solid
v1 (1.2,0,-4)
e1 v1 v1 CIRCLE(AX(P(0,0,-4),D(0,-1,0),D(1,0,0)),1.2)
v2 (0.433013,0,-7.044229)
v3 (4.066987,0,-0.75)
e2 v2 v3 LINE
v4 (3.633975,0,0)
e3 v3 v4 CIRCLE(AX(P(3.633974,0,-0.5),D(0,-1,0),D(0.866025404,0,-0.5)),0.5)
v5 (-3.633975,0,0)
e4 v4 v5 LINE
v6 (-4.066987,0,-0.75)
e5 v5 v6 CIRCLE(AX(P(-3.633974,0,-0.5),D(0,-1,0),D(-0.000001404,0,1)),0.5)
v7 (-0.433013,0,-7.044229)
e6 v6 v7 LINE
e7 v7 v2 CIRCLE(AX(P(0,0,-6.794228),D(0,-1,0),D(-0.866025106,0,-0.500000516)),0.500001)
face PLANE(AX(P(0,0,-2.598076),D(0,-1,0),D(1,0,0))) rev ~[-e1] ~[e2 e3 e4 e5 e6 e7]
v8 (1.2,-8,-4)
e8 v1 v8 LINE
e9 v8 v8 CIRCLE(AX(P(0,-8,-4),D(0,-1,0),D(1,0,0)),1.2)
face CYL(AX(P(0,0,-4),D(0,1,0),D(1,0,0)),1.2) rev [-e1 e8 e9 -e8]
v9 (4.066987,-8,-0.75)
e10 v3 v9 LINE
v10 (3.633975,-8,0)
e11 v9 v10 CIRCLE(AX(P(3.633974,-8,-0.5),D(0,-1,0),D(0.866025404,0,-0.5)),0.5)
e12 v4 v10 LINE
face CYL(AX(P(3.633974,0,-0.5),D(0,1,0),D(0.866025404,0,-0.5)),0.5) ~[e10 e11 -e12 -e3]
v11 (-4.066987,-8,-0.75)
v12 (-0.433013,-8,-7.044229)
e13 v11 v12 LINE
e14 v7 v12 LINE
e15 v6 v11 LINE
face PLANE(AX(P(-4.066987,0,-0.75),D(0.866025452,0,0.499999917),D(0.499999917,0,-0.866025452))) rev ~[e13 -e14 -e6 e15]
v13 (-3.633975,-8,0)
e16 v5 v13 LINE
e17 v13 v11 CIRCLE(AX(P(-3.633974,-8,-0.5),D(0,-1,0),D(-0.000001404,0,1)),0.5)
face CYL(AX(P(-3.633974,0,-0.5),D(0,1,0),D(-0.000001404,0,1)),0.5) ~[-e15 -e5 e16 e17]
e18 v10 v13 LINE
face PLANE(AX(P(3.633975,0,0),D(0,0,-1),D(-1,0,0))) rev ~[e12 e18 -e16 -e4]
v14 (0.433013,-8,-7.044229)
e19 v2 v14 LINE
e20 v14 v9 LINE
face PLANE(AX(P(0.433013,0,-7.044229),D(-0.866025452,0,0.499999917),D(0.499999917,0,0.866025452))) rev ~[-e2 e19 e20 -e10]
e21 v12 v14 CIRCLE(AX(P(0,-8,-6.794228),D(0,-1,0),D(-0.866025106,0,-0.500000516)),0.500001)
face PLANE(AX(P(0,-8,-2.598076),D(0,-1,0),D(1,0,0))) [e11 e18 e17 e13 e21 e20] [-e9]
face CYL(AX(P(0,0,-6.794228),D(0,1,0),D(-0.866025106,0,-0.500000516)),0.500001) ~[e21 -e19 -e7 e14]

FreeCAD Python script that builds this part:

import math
import FreeCAD as App
import Part
import Sketcher
from FreeCAD import Vector
Q = App.Units.Quantity

doc = App.newDocument("Part")
body = doc.addObject("PartDesign::Body", "Body")

sketch1 = body.newObject("Sketcher::SketchObject", "Sketch")
sketch1.AttachmentSupport = (doc.getObject("XZ_Plane"), [""])
sketch1.MapMode = "FlatFace"
sketch1.addGeometry(Part.LineSegment(Vector(3.6, 0, 0), Vector(-3.6, 0, 0)), False)
sketch1.addGeometry(Part.ArcOfCircle(Part.Circle(Vector(-3.6, -0.5, 0), Vector(0, 0, 1), 0.5), math.radians(90), math.radians(210)), False)
sketch1.addGeometry(Part.LineSegment(Vector(-4.1, -0.8, 0), Vector(-0.4, -7, 0)), False)
sketch1.addGeometry(Part.ArcOfCircle(Part.Circle(Vector(0, -6.8, 0), Vector(0, 0, 1), 0.5), math.radians(-150), math.radians(-30)), False)
sketch1.addGeometry(Part.LineSegment(Vector(0.4, -7, 0), Vector(4.1, -0.8, 0)), False)
sketch1.addGeometry(Part.ArcOfCircle(Part.Circle(Vector(3.6, -0.5, 0), Vector(0, 0, 1), 0.5), math.radians(-30), math.radians(90)), False)
sketch1.addGeometry(Part.Circle(Vector(0, -4, 0), Vector(0, 0, 1), 1.2), False)
sketch1.addConstraint(Sketcher.Constraint("Tangent", 0, 2, 1, 1))
sketch1.addConstraint(Sketcher.Constraint("Tangent", 1, 2, 2, 1))
sketch1.addConstraint(Sketcher.Constraint("Tangent", 2, 2, 3, 1))
sketch1.addConstraint(Sketcher.Constraint("Tangent", 3, 2, 4, 1))
sketch1.addConstraint(Sketcher.Constraint("Tangent", 4, 2, 5, 1))
sketch1.addConstraint(Sketcher.Constraint("Tangent", 5, 2, 0, 1))
sketch1.addConstraint(Sketcher.Constraint("Horizontal", 0))
sketch1.addConstraint(Sketcher.Constraint("Equal", 1, 3))
sketch1.addConstraint(Sketcher.Constraint("Equal", 3, 5))
sketch1.addConstraint(Sketcher.Constraint("Symmetric", 0, 2, 5, 2, -1, 1))
sketch1.addConstraint(Sketcher.Constraint("PointOnObject", 3, 3, -2))
sketch1.addConstraint(Sketcher.Constraint("PointOnObject", 6, 3, -2))
sketch1.addConstraint(Sketcher.Constraint("Diameter", 6, 2.4))
sketch1.addConstraint(Sketcher.Constraint("Radius", 1, 0.5))
sketch1.addConstraint(Sketcher.Constraint("Angle", 2, Q("-60.000006 deg")))
sketch1.addConstraint(Sketcher.Constraint("DistanceY", 6, 3, -1, 1, 4.0))
sketch1.addConstraint(Sketcher.Constraint("DistanceX", 0, 2, 0, 1, 7.26795))
pad1 = body.newObject("PartDesign::Pad", "Pad")
pad1.Profile = sketch1
pad1.Length = 8

doc.recompute()
